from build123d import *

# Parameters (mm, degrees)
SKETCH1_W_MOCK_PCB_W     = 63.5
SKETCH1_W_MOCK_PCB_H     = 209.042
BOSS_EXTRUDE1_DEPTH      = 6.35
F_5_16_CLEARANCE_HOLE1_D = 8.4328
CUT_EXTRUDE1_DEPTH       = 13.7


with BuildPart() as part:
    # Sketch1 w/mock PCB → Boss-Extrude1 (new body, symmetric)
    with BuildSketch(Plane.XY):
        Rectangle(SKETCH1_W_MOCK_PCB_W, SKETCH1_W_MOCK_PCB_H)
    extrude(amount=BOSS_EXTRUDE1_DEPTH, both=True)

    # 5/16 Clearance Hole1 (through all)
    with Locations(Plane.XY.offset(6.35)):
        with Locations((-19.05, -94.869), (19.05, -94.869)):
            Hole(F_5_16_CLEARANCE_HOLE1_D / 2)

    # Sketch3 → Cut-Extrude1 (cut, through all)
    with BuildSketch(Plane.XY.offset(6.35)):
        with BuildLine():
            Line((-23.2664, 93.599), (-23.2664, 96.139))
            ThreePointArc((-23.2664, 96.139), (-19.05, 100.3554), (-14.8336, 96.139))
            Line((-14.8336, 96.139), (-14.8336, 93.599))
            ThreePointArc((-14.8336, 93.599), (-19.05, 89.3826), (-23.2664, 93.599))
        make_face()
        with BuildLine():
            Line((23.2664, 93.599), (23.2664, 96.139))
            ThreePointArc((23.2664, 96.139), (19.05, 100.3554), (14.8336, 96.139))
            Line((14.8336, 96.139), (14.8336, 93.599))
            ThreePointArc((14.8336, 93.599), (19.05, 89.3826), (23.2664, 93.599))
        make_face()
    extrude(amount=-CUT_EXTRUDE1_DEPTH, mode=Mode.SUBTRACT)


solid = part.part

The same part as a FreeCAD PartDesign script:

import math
import FreeCAD as App
import Part
import Sketcher

V = App.Vector
Q = App.Units.Quantity

doc = App.newDocument("Part")
body = doc.addObject("PartDesign::Body", "Body")

# Sketch on XY plane
sketch1 = body.newObject("Sketcher::SketchObject", "Sketch")
sketch1.AttachmentSupport = (doc.getObject("XY_Plane"), [""])
sketch1.MapMode = "FlatFace"
sketch1.addGeometry(Part.LineSegment(V(-31.75, 104.521, 0), V(-31.75, -104.521, 0)), False)
sketch1.addGeometry(Part.LineSegment(V(-31.75, -104.521, 0), V(31.75, -104.521, 0)), False)
sketch1.addGeometry(Part.LineSegment(V(31.75, -104.521, 0), V(31.75, 104.521, 0)), False)
sketch1.addGeometry(Part.LineSegment(V(31.75, 104.521, 0), V(-31.75, 104.521, 0)), False)
sketch1.addConstraint(Sketcher.Constraint("Coincident", 0, 2, 1, 1))
sketch1.addConstraint(Sketcher.Constraint("Coincident", 1, 2, 2, 1))
sketch1.addConstraint(Sketcher.Constraint("Coincident", 2, 2, 3, 1))
sketch1.addConstraint(Sketcher.Constraint("Coincident", 3, 2, 0, 1))
sketch1.addConstraint(Sketcher.Constraint("Vertical", 0))
sketch1.addConstraint(Sketcher.Constraint("Horizontal", 1))
sketch1.addConstraint(Sketcher.Constraint("Vertical", 2))
sketch1.addConstraint(Sketcher.Constraint("Horizontal", 3))
sketch1.addConstraint(Sketcher.Constraint("Symmetric", 0, 2, 2, 2, -1, 1))
sketch1.addConstraint(Sketcher.Constraint("DistanceX", 1, 1, 1, 2, Q("2.5 in")))
sketch1.addConstraint(Sketcher.Constraint("DistanceY", 0, 2, 0, 1, Q("8.23 in")))
pad1 = body.newObject("PartDesign::Pad", "Pad")
pad1.Profile = sketch1
pad1.Length = Q("0.5 in")
pad1.Midplane = True

# Sketch on XY plane
sketch2 = body.newObject("Sketcher::SketchObject", "Sketch001")
sketch2.AttachmentSupport = (doc.getObject("XY_Plane"), [""])
sketch2.MapMode = "FlatFace"
sketch2.AttachmentOffset = App.Placement(V(0, 0, 0.25 * 25.4), App.Rotation())
sketch2.addGeometry(Part.Circle(V(-19.05, -94.869, 0), V(0, 0, 1), 4.2164), False)
sketch2.addGeometry(Part.Circle(V(19.05, -94.869, 0), V(0, 0, 1), 4.2164), False)
sketch2.addConstraint(Sketcher.Constraint("Equal", 0, 1))
sketch2.addConstraint(Sketcher.Constraint("Symmetric", 0, 3, 1, 3, -2))
sketch2.addConstraint(Sketcher.Constraint("Diameter", 0, Q("0.332 in")))
sketch2.addConstraint(Sketcher.Constraint("DistanceX", 0, 3, 1, 3, Q("1.5 in")))
sketch2.addConstraint(Sketcher.Constraint("DistanceY", 0, 3, -1, 1, Q("3.735 in")))
doc.recompute()
hole = body.newObject("PartDesign::Hole", "Hole")
hole.Profile = sketch2
hole.ThreadType = "None"
hole.Diameter = Q("0.332 in")
hole.DepthType = "ThroughAll"

# Sketch on XY plane
sketch3 = body.newObject("Sketcher::SketchObject", "Sketch002")
sketch3.AttachmentSupport = (doc.getObject("XY_Plane"), [""])
sketch3.MapMode = "FlatFace"
sketch3.AttachmentOffset = App.Placement(V(0, 0, 0.25 * 25.4), App.Rotation())
sketch3.addGeometry(Part.LineSegment(V(-23.2664, 96.139, 0), V(-23.2664, 93.599, 0)), False)
sketch3.addGeometry(Part.ArcOfCircle(Part.Circle(V(-19.05, 93.599, 0), V(0, 0, 1), 4.2164), math.radians(180), math.radians(360)), False)
sketch3.addGeometry(Part.LineSegment(V(-14.8336, 93.599, 0), V(-14.8336, 96.139, 0)), False)
sketch3.addGeometry(Part.ArcOfCircle(Part.Circle(V(-19.05, 96.139, 0), V(0, 0, 1), 4.2164), math.radians(0), math.radians(180)), False)
sketch3.addGeometry(Part.LineSegment(V(23.2664, 93.599, 0), V(23.2664, 96.139, 0)), False)
sketch3.addGeometry(Part.ArcOfCircle(Part.Circle(V(19.05, 96.139, 0), V(0, 0, 1), 4.2164), math.radians(0), math.radians(180)), False)
sketch3.addGeometry(Part.LineSegment(V(14.8336, 96.139, 0), V(14.8336, 93.599, 0)), False)
sketch3.addGeometry(Part.ArcOfCircle(Part.Circle(V(19.05, 93.599, 0), V(0, 0, 1), 4.2164), math.radians(180), math.radians(360)), False)
sketch3.addConstraint(Sketcher.Constraint("Tangent", 0, 2, 1, 1))
sketch3.addConstraint(Sketcher.Constraint("Tangent", 1, 2, 2, 1))
sketch3.addConstraint(Sketcher.Constraint("Tangent", 2, 2, 3, 1))
sketch3.addConstraint(Sketcher.Constraint("Tangent", 3, 2, 0, 1))
sketch3.addConstraint(Sketcher.Constraint("Tangent", 4, 2, 5, 1))
sketch3.addConstraint(Sketcher.Constraint("Tangent", 5, 2, 6, 1))
sketch3.addConstraint(Sketcher.Constraint("Tangent", 6, 2, 7, 1))
sketch3.addConstraint(Sketcher.Constraint("Tangent", 7, 2, 4, 1))
sketch3.addConstraint(Sketcher.Constraint("Vertical", 0))
sketch3.addConstraint(Sketcher.Constraint("Vertical", 2))
sketch3.addConstraint(Sketcher.Constraint("Vertical", 4))
sketch3.addConstraint(Sketcher.Constraint("Vertical", 6))
sketch3.addConstraint(Sketcher.Constraint("Equal", 3, 5))
sketch3.addConstraint(Sketcher.Constraint("Symmetric", 3, 3, 5, 3, -2))
sketch3.addConstraint(Sketcher.Constraint("Horizontal", 1, 3, 7, 3))
sketch3.addConstraint(Sketcher.Constraint("DistanceY", 0, 2, 0, 1, Q("0.1 in")))
sketch3.addConstraint(Sketcher.Constraint("Radius", 1, Q("0.166 in")))
sketch3.addConstraint(Sketcher.Constraint("DistanceX", 3, 3, 5, 3, Q("1.5 in")))
sketch3.addConstraint(Sketcher.Constraint("DistanceY", -1, 1, 1, 3, Q("3.685 in")))
pocket1 = body.newObject("PartDesign::Pocket", "Pocket")
pocket1.Profile = sketch3
pocket1.Type = "ThroughAll"

doc.recompute()
